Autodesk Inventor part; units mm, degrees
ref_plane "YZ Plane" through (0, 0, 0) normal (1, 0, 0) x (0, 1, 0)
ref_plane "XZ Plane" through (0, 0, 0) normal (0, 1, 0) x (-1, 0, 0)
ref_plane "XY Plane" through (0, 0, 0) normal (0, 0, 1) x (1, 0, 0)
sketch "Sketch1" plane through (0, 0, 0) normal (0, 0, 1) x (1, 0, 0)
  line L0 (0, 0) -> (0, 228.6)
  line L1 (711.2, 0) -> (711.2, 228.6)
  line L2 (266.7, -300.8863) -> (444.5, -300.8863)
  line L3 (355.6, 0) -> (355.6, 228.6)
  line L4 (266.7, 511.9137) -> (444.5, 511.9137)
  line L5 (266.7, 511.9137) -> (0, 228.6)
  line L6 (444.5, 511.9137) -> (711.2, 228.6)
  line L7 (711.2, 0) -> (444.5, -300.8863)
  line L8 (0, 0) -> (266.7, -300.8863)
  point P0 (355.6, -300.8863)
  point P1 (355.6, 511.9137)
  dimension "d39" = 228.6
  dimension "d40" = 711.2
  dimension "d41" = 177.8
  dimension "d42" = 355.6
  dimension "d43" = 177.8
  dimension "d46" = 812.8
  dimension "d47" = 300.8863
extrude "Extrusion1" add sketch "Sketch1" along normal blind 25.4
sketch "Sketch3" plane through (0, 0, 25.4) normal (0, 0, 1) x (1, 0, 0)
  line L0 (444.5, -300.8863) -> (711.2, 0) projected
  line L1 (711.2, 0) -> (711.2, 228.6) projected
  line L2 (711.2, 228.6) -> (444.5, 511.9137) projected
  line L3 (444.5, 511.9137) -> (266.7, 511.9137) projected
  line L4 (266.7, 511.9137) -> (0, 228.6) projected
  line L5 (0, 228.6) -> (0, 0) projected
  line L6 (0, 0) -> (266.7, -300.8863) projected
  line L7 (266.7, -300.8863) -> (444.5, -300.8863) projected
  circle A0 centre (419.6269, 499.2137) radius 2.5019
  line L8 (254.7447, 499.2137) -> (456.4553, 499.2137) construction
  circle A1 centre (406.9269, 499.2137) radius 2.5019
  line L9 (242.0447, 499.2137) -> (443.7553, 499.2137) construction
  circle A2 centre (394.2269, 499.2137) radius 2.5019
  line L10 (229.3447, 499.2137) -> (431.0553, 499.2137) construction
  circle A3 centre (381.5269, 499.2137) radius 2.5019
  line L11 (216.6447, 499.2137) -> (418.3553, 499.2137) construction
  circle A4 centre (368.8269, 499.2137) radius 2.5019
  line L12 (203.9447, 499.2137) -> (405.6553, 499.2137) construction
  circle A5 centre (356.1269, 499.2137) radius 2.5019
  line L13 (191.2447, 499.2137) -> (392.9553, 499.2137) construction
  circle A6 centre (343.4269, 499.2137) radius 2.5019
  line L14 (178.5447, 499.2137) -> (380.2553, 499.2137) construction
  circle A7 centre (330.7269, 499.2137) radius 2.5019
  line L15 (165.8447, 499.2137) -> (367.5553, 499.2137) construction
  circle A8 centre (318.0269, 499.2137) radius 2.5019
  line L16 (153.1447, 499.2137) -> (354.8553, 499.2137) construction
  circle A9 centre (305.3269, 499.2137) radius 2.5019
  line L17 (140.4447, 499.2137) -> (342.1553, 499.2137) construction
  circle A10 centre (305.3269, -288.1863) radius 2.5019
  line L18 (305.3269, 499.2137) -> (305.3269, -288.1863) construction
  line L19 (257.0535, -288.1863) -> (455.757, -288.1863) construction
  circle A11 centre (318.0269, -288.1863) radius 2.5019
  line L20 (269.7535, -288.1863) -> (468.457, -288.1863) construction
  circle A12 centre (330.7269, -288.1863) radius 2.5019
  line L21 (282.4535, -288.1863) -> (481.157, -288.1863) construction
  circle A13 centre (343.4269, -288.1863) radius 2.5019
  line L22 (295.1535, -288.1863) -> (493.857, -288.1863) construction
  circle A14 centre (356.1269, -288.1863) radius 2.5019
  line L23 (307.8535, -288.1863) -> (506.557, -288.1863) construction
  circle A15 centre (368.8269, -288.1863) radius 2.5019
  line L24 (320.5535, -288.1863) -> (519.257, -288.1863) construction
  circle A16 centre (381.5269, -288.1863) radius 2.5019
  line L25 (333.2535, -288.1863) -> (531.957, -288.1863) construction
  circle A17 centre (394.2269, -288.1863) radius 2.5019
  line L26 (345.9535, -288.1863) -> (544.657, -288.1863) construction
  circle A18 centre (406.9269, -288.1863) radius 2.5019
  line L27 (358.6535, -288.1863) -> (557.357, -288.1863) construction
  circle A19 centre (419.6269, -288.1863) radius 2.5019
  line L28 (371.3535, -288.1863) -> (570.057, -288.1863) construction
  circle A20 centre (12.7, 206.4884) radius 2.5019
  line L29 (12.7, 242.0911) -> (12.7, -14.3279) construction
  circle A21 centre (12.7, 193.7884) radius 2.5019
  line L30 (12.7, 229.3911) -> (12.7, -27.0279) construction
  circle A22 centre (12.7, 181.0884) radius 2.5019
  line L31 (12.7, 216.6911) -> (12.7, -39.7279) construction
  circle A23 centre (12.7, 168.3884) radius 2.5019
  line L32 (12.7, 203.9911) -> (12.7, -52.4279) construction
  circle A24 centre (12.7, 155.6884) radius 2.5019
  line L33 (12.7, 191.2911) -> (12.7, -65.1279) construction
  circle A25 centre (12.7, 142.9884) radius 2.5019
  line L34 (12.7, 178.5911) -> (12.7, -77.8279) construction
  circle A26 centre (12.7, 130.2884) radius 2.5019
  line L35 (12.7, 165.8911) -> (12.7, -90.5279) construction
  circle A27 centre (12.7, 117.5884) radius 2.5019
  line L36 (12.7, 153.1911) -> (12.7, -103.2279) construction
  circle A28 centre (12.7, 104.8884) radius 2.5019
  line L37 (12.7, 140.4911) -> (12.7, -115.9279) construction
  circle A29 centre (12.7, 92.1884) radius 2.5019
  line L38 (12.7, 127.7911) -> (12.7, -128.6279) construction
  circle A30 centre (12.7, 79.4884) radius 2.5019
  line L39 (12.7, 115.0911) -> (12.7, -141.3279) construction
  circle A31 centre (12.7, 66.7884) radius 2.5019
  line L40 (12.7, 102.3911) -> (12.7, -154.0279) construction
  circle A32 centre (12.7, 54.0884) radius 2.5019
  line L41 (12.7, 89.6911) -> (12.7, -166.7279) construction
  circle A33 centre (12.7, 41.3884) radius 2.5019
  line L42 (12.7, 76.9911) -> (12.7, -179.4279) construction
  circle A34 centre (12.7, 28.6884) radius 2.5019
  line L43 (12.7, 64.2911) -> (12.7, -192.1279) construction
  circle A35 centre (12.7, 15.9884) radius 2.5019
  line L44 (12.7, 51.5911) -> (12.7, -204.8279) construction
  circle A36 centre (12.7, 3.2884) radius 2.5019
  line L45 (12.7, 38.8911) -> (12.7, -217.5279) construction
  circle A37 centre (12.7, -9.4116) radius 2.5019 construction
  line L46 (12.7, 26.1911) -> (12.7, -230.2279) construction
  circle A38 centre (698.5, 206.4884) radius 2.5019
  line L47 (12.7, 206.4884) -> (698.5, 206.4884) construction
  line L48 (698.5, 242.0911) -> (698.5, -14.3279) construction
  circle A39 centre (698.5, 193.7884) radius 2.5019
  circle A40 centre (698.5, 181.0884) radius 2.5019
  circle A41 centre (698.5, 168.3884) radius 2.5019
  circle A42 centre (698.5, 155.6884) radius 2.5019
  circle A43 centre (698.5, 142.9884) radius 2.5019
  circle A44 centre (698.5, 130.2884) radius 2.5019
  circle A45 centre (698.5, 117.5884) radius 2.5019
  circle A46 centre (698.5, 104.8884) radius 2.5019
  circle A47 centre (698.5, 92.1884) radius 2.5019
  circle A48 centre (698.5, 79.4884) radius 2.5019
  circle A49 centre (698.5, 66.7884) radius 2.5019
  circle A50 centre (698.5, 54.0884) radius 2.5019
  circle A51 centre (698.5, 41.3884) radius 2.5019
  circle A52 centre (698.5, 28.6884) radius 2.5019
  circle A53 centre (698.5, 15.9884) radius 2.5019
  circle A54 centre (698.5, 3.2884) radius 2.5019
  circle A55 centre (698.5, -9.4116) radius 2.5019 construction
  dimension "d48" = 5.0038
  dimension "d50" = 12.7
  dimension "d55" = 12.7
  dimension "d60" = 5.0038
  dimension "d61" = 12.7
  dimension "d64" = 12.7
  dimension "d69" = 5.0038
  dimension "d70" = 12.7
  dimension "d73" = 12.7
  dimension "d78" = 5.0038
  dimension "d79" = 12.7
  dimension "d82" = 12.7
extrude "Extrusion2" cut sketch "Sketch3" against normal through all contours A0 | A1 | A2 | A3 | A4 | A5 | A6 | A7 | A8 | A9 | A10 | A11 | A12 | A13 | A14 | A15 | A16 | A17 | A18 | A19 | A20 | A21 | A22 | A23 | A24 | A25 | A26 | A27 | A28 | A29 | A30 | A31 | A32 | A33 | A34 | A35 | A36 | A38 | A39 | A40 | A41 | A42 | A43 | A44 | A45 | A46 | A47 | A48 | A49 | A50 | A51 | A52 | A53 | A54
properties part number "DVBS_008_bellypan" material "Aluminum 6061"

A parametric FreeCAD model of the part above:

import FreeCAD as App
import Part
import Sketcher
Q = App.Units.Quantity


def add_polygon(sketch, points):
    """Adds a closed chain of lines whose ends are joined by coincident constraints."""
    first, n = sketch.GeometryCount, len(points)
    for a, b in zip(points, points[1:] + points[:1]):
        sketch.addGeometry(Part.LineSegment(App.Vector(*a, 0), App.Vector(*b, 0)), False)
    for i in range(n):
        sketch.addConstraint(Sketcher.Constraint("Coincident", first + i, 2, first + (i + 1) % n, 1))

doc = App.newDocument("Part")
body = doc.addObject("PartDesign::Body", "Body")

# Sketch on XY plane
sketch1 = body.newObject("Sketcher::SketchObject", "Sketch")
sketch1.AttachmentSupport = (doc.getObject("XY_Plane"), [""])
sketch1.MapMode = "FlatFace"
add_polygon(sketch1, [(0, 229), (0, 0), (267, -301), (444, -301), (711, 0), (711, 229), (444, 512), (267, 512)])  # lines 0-7
sketch1.addConstraint([
    Sketcher.Constraint("Vertical", 0),
    Sketcher.Constraint("Horizontal", 2),
    Sketcher.Constraint("Vertical", 4),
    Sketcher.Constraint("Horizontal", 6),
    Sketcher.Constraint("Coincident", 0, 2, -1, 1),
    Sketcher.Constraint("PointOnObject", 3, 2, -1),
    Sketcher.Constraint("Horizontal", 4, 2, 7, 2),
    Sketcher.Constraint("Vertical", 2, 2, 5, 2),
    Sketcher.Constraint("Vertical", 1, 2, 6, 2),
    Sketcher.Constraint("Equal", 1, 3),
    Sketcher.Constraint("DistanceX", 2, 1, 2, 2, Q("7 in")),
    Sketcher.Constraint("DistanceY", 0, 2, 0, 1, Q("9 in")),
    Sketcher.Constraint("DistanceX", -1, 1, 3, 2, Q("28 in")),
    Sketcher.Constraint("DistanceY", 2, 2, 5, 2, Q("32 in")),
    Sketcher.Constraint("DistanceY", 1, 2, -1, 1, 300.8863),
])
pad1 = body.newObject("PartDesign::Pad", "Pad")
pad1.Profile = sketch1
pad1.Length = Q("1 in")

# Sketch on XY plane
sketch2 = body.newObject("Sketcher::SketchObject", "Sketch001")
sketch2.AttachmentSupport = (doc.getObject("XY_Plane"), [""])
sketch2.MapMode = "FlatFace"
sketch2.AttachmentOffset = App.Placement(App.Vector(0, 0, 1 * 25.4), App.Rotation())
sketch2.addGeometry([
    Part.Circle(App.Vector(419.6, 499.2, 0), App.Vector(0, 0, 1), 2.5),  # 0
    Part.Circle(App.Vector(406.9, 499.2, 0), App.Vector(0, 0, 1), 2.5),  # 1
    Part.Circle(App.Vector(394.2, 499.2, 0), App.Vector(0, 0, 1), 2.5),  # 2
    Part.Circle(App.Vector(381.5, 499.2, 0), App.Vector(0, 0, 1), 2.5),  # 3
    Part.Circle(App.Vector(368.8, 499.2, 0), App.Vector(0, 0, 1), 2.5),  # 4
    Part.Circle(App.Vector(356.1, 499.2, 0), App.Vector(0, 0, 1), 2.5),  # 5
    Part.Circle(App.Vector(343.4, 499.2, 0), App.Vector(0, 0, 1), 2.5),  # 6
    Part.Circle(App.Vector(330.7, 499.2, 0), App.Vector(0, 0, 1), 2.5),  # 7
    Part.Circle(App.Vector(318, 499.2, 0), App.Vector(0, 0, 1), 2.5),  # 8
    Part.Circle(App.Vector(305.3, 499.2, 0), App.Vector(0, 0, 1), 2.5),  # 9
    Part.Circle(App.Vector(305.3, -288.2, 0), App.Vector(0, 0, 1), 2.5),  # 10
    Part.Circle(App.Vector(318, -288.2, 0), App.Vector(0, 0, 1), 2.5),  # 11
    Part.Circle(App.Vector(330.7, -288.2, 0), App.Vector(0, 0, 1), 2.5),  # 12
    Part.Circle(App.Vector(343.4, -288.2, 0), App.Vector(0, 0, 1), 2.5),  # 13
    Part.Circle(App.Vector(356.1, -288.2, 0), App.Vector(0, 0, 1), 2.5),  # 14
    Part.Circle(App.Vector(368.8, -288.2, 0), App.Vector(0, 0, 1), 2.5),  # 15
    Part.Circle(App.Vector(381.5, -288.2, 0), App.Vector(0, 0, 1), 2.5),  # 16
    Part.Circle(App.Vector(394.2, -288.2, 0), App.Vector(0, 0, 1), 2.5),  # 17
    Part.Circle(App.Vector(406.9, -288.2, 0), App.Vector(0, 0, 1), 2.5),  # 18
    Part.Circle(App.Vector(419.6, -288.2, 0), App.Vector(0, 0, 1), 2.5),  # 19
    Part.Circle(App.Vector(12.7, 206.5, 0), App.Vector(0, 0, 1), 2.5),  # 20
    Part.Circle(App.Vector(12.7, 193.8, 0), App.Vector(0, 0, 1), 2.5),  # 21
    Part.Circle(App.Vector(12.7, 181.1, 0), App.Vector(0, 0, 1), 2.5),  # 22
    Part.Circle(App.Vector(12.7, 168.4, 0), App.Vector(0, 0, 1), 2.5),  # 23
    Part.Circle(App.Vector(12.7, 155.7, 0), App.Vector(0, 0, 1), 2.5),  # 24
    Part.Circle(App.Vector(12.7, 143, 0), App.Vector(0, 0, 1), 2.5),  # 25
    Part.Circle(App.Vector(12.7, 130.3, 0), App.Vector(0, 0, 1), 2.5),  # 26
    Part.Circle(App.Vector(12.7, 117.6, 0), App.Vector(0, 0, 1), 2.5),  # 27
    Part.Circle(App.Vector(12.7, 104.9, 0), App.Vector(0, 0, 1), 2.5),  # 28
    Part.Circle(App.Vector(12.7, 92.2, 0), App.Vector(0, 0, 1), 2.5),  # 29
    Part.Circle(App.Vector(12.7, 79.5, 0), App.Vector(0, 0, 1), 2.5),  # 30
    Part.Circle(App.Vector(12.7, 66.8, 0), App.Vector(0, 0, 1), 2.5),  # 31
    Part.Circle(App.Vector(12.7, 54.1, 0), App.Vector(0, 0, 1), 2.5),  # 32
    Part.Circle(App.Vector(12.7, 41.4, 0), App.Vector(0, 0, 1), 2.5),  # 33
    Part.Circle(App.Vector(12.7, 28.7, 0), App.Vector(0, 0, 1), 2.5),  # 34
    Part.Circle(App.Vector(12.7, 16, 0), App.Vector(0, 0, 1), 2.5),  # 35
    Part.Circle(App.Vector(12.7, 3.3, 0), App.Vector(0, 0, 1), 2.5),  # 36
    Part.Circle(App.Vector(698.5, 206.5, 0), App.Vector(0, 0, 1), 2.5),  # 37
    Part.Circle(App.Vector(698.5, 193.8, 0), App.Vector(0, 0, 1), 2.5),  # 38
    Part.Circle(App.Vector(698.5, 181.1, 0), App.Vector(0, 0, 1), 2.5),  # 39
    Part.Circle(App.Vector(698.5, 168.4, 0), App.Vector(0, 0, 1), 2.5),  # 40
    Part.Circle(App.Vector(698.5, 155.7, 0), App.Vector(0, 0, 1), 2.5),  # 41
    Part.Circle(App.Vector(698.5, 143, 0), App.Vector(0, 0, 1), 2.5),  # 42
    Part.Circle(App.Vector(698.5, 130.3, 0), App.Vector(0, 0, 1), 2.5),  # 43
    Part.Circle(App.Vector(698.5, 117.6, 0), App.Vector(0, 0, 1), 2.5),  # 44
    Part.Circle(App.Vector(698.5, 104.9, 0), App.Vector(0, 0, 1), 2.5),  # 45
    Part.Circle(App.Vector(698.5, 92.2, 0), App.Vector(0, 0, 1), 2.5),  # 46
    Part.Circle(App.Vector(698.5, 79.5, 0), App.Vector(0, 0, 1), 2.5),  # 47
    Part.Circle(App.Vector(698.5, 66.8, 0), App.Vector(0, 0, 1), 2.5),  # 48
    Part.Circle(App.Vector(698.5, 54.1, 0), App.Vector(0, 0, 1), 2.5),  # 49
    Part.Circle(App.Vector(698.5, 41.4, 0), App.Vector(0, 0, 1), 2.5),  # 50
    Part.Circle(App.Vector(698.5, 28.7, 0), App.Vector(0, 0, 1), 2.5),  # 51
    Part.Circle(App.Vector(698.5, 16, 0), App.Vector(0, 0, 1), 2.5),  # 52
    Part.Circle(App.Vector(698.5, 3.3, 0), App.Vector(0, 0, 1), 2.5),  # 53
], False)
sketch2.addConstraint([
    Sketcher.Constraint("Equal", 0, 1),
    Sketcher.Constraint("Equal", 1, 2),
    Sketcher.Constraint("Equal", 2, 3),
    Sketcher.Constraint("Equal", 3, 4),
    Sketcher.Constraint("Equal", 4, 5),
    Sketcher.Constraint("Equal", 5, 6),
    Sketcher.Constraint("Equal", 6, 7),
    Sketcher.Constraint("Equal", 7, 8),
    Sketcher.Constraint("Equal", 8, 9),
    Sketcher.Constraint("Equal", 9, 10),
    Sketcher.Constraint("Equal", 10, 11),
    Sketcher.Constraint("Equal", 11, 12),
    Sketcher.Constraint("Equal", 12, 13),
    Sketcher.Constraint("Equal", 13, 14),
    Sketcher.Constraint("Equal", 14, 15),
    Sketcher.Constraint("Equal", 15, 16),
    Sketcher.Constraint("Equal", 16, 17),
    Sketcher.Constraint("Equal", 17, 18),
    Sketcher.Constraint("Equal", 18, 19),
    Sketcher.Constraint("Equal", 19, 20),
    Sketcher.Constraint("Equal", 20, 21),
    Sketcher.Constraint("Equal", 21, 22),
    Sketcher.Constraint("Equal", 22, 23),
    Sketcher.Constraint("Equal", 23, 24),
    Sketcher.Constraint("Equal", 24, 25),
    Sketcher.Constraint("Equal", 25, 26),
    Sketcher.Constraint("Equal", 26, 27),
    Sketcher.Constraint("Equal", 27, 28),
    Sketcher.Constraint("Equal", 28, 29),
    Sketcher.Constraint("Equal", 29, 30),
    Sketcher.Constraint("Equal", 30, 31),
    Sketcher.Constraint("Equal", 31, 32),
    Sketcher.Constraint("Equal", 32, 33),
    Sketcher.Constraint("Equal", 33, 34),
    Sketcher.Constraint("Equal", 34, 35),
    Sketcher.Constraint("Equal", 35, 36),
    Sketcher.Constraint("Equal", 36, 37),
    Sketcher.Constraint("Equal", 37, 38),
    Sketcher.Constraint("Equal", 38, 39),
    Sketcher.Constraint("Equal", 39, 40),
    Sketcher.Constraint("Equal", 40, 41),
    Sketcher.Constraint("Equal", 41, 42),
    Sketcher.Constraint("Equal", 42, 43),
    Sketcher.Constraint("Equal", 43, 44),
    Sketcher.Constraint("Equal", 44, 45),
    Sketcher.Constraint("Equal", 45, 46),
    Sketcher.Constraint("Equal", 46, 47),
    Sketcher.Constraint("Equal", 47, 48),
    Sketcher.Constraint("Equal", 48, 49),
    Sketcher.Constraint("Equal", 49, 50),
    Sketcher.Constraint("Equal", 50, 51),
    Sketcher.Constraint("Equal", 51, 52),
    Sketcher.Constraint("Equal", 52, 53),
    Sketcher.Constraint("Horizontal", 0, 3, 1, 3),
    Sketcher.Constraint("Horizontal", 1, 3, 2, 3),
    Sketcher.Constraint("Horizontal", 2, 3, 3, 3),
    Sketcher.Constraint("Horizontal", 3, 3, 4, 3),
    Sketcher.Constraint("Horizontal", 4, 3, 5, 3),
    Sketcher.Constraint("Horizontal", 5, 3, 6, 3),
    Sketcher.Constraint("Horizontal", 6, 3, 7, 3),
    Sketcher.Constraint("Horizontal", 7, 3, 8, 3),
    Sketcher.Constraint("Horizontal", 8, 3, 9, 3),
    Sketcher.Constraint("Horizontal", 10, 3, 11, 3),
    Sketcher.Constraint("Horizontal", 11, 3, 12, 3),
    Sketcher.Constraint("Horizontal", 12, 3, 13, 3),
    Sketcher.Constraint("Horizontal", 13, 3, 14, 3),
    Sketcher.Constraint("Horizontal", 14, 3, 15, 3),
    Sketcher.Constraint("Horizontal", 15, 3, 16, 3),
    Sketcher.Constraint("Horizontal", 16, 3, 17, 3),
    Sketcher.Constraint("Horizontal", 17, 3, 18, 3),
    Sketcher.Constraint("Horizontal", 18, 3, 19, 3),
    Sketcher.Constraint("Horizontal", 20, 3, 37, 3),
    Sketcher.Constraint("Horizontal", 21, 3, 38, 3),
    Sketcher.Constraint("Horizontal", 22, 3, 39, 3),
    Sketcher.Constraint("Horizontal", 23, 3, 40, 3),
    Sketcher.Constraint("Horizontal", 24, 3, 41, 3),
    Sketcher.Constraint("Horizontal", 25, 3, 42, 3),
    Sketcher.Constraint("Horizontal", 26, 3, 43, 3),
    Sketcher.Constraint("Horizontal", 27, 3, 44, 3),
    Sketcher.Constraint("Horizontal", 28, 3, 45, 3),
    Sketcher.Constraint("Horizontal", 29, 3, 46, 3),
    Sketcher.Constraint("Horizontal", 30, 3, 47, 3),
    Sketcher.Constraint("Horizontal", 31, 3, 48, 3),
    Sketcher.Constraint("Horizontal", 32, 3, 49, 3),
    Sketcher.Constraint("Horizontal", 33, 3, 50, 3),
    Sketcher.Constraint("Horizontal", 34, 3, 51, 3),
    Sketcher.Constraint("Horizontal", 35, 3, 52, 3),
    Sketcher.Constraint("Horizontal", 36, 3, 53, 3),
    Sketcher.Constraint("Vertical", 9, 3, 10, 3),
    Sketcher.Constraint("Vertical", 8, 3, 11, 3),
    Sketcher.Constraint("Vertical", 7, 3, 12, 3),
    Sketcher.Constraint("Vertical", 6, 3, 13, 3),
    Sketcher.Constraint("Vertical", 5, 3, 14, 3),
    Sketcher.Constraint("Vertical", 4, 3, 15, 3),
    Sketcher.Constraint("Vertical", 3, 3, 16, 3),
    Sketcher.Constraint("Vertical", 2, 3, 17, 3),
    Sketcher.Constraint("Vertical", 1, 3, 18, 3),
    Sketcher.Constraint("Vertical", 0, 3, 19, 3),
    Sketcher.Constraint("Vertical", 20, 3, 21, 3),
    Sketcher.Constraint("Vertical", 21, 3, 22, 3),
    Sketcher.Constraint("Vertical", 22, 3, 23, 3),
    Sketcher.Constraint("Vertical", 23, 3, 24, 3),
    Sketcher.Constraint("Vertical", 24, 3, 25, 3),
    Sketcher.Constraint("Vertical", 25, 3, 26, 3),
    Sketcher.Constraint("Vertical", 26, 3, 27, 3),
    Sketcher.Constraint("Vertical", 27, 3, 28, 3),
    Sketcher.Constraint("Vertical", 28, 3, 29, 3),
    Sketcher.Constraint("Vertical", 29, 3, 30, 3),
    Sketcher.Constraint("Vertical", 30, 3, 31, 3),
    Sketcher.Constraint("Vertical", 31, 3, 32, 3),
    Sketcher.Constraint("Vertical", 32, 3, 33, 3),
    Sketcher.Constraint("Vertical", 33, 3, 34, 3),
    Sketcher.Constraint("Vertical", 34, 3, 35, 3),
    Sketcher.Constraint("Vertical", 35, 3, 36, 3),
    Sketcher.Constraint("Vertical", 37, 3, 38, 3),
    Sketcher.Constraint("Vertical", 38, 3, 39, 3),
    Sketcher.Constraint("Vertical", 39, 3, 40, 3),
    Sketcher.Constraint("Vertical", 40, 3, 41, 3),
    Sketcher.Constraint("Vertical", 41, 3, 42, 3),
    Sketcher.Constraint("Vertical", 42, 3, 43, 3),
    Sketcher.Constraint("Vertical", 43, 3, 44, 3),
    Sketcher.Constraint("Vertical", 44, 3, 45, 3),
    Sketcher.Constraint("Vertical", 45, 3, 46, 3),
    Sketcher.Constraint("Vertical", 46, 3, 47, 3),
    Sketcher.Constraint("Vertical", 47, 3, 48, 3),
    Sketcher.Constraint("Vertical", 48, 3, 49, 3),
    Sketcher.Constraint("Vertical", 49, 3, 50, 3),
    Sketcher.Constraint("Vertical", 50, 3, 51, 3),
    Sketcher.Constraint("Vertical", 51, 3, 52, 3),
    Sketcher.Constraint("Vertical", 52, 3, 53, 3),
    Sketcher.Constraint("Diameter", 0, Q("0.197 in")),
    Sketcher.Constraint("DistanceX", 2, 3, 0, 3, Q("1 in")),
    Sketcher.Constraint("DistanceX", 3, 3, 1, 3, Q("1 in")),
    Sketcher.Constraint("DistanceX", 4, 3, 2, 3, Q("1 in")),
    Sketcher.Constraint("DistanceX", 5, 3, 3, 3, Q("1 in")),
    Sketcher.Constraint("DistanceX", 6, 3, 4, 3, Q("1 in")),
    Sketcher.Constraint("DistanceX", 7, 3, 5, 3, Q("1 in")),
    Sketcher.Constraint("DistanceX", 8, 3, 6, 3, Q("1 in")),
    Sketcher.Constraint("DistanceX", 9, 3, 7, 3, Q("1 in")),
    Sketcher.Constraint("DistanceY", 22, 3, 20, 3, Q("1 in")),
    Sketcher.Constraint("DistanceY", 23, 3, 21, 3, Q("1 in")),
    Sketcher.Constraint("DistanceY", 24, 3, 22, 3, Q("1 in")),
    Sketcher.Constraint("DistanceY", 25, 3, 23, 3, Q("1 in")),
    Sketcher.Constraint("DistanceY", 26, 3, 24, 3, Q("1 in")),
    Sketcher.Constraint("DistanceY", 27, 3, 25, 3, Q("1 in")),
    Sketcher.Constraint("DistanceY", 28, 3, 26, 3, Q("1 in")),
    Sketcher.Constraint("DistanceY", 29, 3, 27, 3, Q("1 in")),
    Sketcher.Constraint("DistanceY", 30, 3, 28, 3, Q("1 in")),
    Sketcher.Constraint("DistanceY", 31, 3, 29, 3, Q("1 in")),
    Sketcher.Constraint("DistanceY", 32, 3, 30, 3, Q("1 in")),
    Sketcher.Constraint("DistanceY", 33, 3, 31, 3, Q("1 in")),
    Sketcher.Constraint("DistanceY", 34, 3, 32, 3, Q("1 in")),
    Sketcher.Constraint("DistanceY", 35, 3, 33, 3, Q("1 in")),
    Sketcher.Constraint("DistanceY", 36, 3, 34, 3, Q("1 in")),
    Sketcher.Constraint("DistanceX", -1, 1, 20, 3, Q("0.5 in")),
    Sketcher.Constraint("DistanceX", 1, 3, 0, 3, Q("0.5 in")),
    Sketcher.Constraint("DistanceY", 21, 3, 20, 3, Q("0.5 in")),
    Sketcher.Constraint("DistanceY", 10, 3, 9, 3, Q("31 in")),
    Sketcher.Constraint("DistanceX", -1, 1, 37, 3, Q("27.5 in")),
    Sketcher.Constraint("DistanceX", -1, 1, 0, 3, 419.627),
    Sketcher.Constraint("DistanceY", -1, 1, 0, 3, 499.2137),
    Sketcher.Constraint("DistanceY", -1, 1, 20, 3, 206.4884),
])
pocket1 = body.newObject("PartDesign::Pocket", "Pocket")
pocket1.Profile = sketch2
pocket1.Type = "ThroughAll"

doc.recompute()
